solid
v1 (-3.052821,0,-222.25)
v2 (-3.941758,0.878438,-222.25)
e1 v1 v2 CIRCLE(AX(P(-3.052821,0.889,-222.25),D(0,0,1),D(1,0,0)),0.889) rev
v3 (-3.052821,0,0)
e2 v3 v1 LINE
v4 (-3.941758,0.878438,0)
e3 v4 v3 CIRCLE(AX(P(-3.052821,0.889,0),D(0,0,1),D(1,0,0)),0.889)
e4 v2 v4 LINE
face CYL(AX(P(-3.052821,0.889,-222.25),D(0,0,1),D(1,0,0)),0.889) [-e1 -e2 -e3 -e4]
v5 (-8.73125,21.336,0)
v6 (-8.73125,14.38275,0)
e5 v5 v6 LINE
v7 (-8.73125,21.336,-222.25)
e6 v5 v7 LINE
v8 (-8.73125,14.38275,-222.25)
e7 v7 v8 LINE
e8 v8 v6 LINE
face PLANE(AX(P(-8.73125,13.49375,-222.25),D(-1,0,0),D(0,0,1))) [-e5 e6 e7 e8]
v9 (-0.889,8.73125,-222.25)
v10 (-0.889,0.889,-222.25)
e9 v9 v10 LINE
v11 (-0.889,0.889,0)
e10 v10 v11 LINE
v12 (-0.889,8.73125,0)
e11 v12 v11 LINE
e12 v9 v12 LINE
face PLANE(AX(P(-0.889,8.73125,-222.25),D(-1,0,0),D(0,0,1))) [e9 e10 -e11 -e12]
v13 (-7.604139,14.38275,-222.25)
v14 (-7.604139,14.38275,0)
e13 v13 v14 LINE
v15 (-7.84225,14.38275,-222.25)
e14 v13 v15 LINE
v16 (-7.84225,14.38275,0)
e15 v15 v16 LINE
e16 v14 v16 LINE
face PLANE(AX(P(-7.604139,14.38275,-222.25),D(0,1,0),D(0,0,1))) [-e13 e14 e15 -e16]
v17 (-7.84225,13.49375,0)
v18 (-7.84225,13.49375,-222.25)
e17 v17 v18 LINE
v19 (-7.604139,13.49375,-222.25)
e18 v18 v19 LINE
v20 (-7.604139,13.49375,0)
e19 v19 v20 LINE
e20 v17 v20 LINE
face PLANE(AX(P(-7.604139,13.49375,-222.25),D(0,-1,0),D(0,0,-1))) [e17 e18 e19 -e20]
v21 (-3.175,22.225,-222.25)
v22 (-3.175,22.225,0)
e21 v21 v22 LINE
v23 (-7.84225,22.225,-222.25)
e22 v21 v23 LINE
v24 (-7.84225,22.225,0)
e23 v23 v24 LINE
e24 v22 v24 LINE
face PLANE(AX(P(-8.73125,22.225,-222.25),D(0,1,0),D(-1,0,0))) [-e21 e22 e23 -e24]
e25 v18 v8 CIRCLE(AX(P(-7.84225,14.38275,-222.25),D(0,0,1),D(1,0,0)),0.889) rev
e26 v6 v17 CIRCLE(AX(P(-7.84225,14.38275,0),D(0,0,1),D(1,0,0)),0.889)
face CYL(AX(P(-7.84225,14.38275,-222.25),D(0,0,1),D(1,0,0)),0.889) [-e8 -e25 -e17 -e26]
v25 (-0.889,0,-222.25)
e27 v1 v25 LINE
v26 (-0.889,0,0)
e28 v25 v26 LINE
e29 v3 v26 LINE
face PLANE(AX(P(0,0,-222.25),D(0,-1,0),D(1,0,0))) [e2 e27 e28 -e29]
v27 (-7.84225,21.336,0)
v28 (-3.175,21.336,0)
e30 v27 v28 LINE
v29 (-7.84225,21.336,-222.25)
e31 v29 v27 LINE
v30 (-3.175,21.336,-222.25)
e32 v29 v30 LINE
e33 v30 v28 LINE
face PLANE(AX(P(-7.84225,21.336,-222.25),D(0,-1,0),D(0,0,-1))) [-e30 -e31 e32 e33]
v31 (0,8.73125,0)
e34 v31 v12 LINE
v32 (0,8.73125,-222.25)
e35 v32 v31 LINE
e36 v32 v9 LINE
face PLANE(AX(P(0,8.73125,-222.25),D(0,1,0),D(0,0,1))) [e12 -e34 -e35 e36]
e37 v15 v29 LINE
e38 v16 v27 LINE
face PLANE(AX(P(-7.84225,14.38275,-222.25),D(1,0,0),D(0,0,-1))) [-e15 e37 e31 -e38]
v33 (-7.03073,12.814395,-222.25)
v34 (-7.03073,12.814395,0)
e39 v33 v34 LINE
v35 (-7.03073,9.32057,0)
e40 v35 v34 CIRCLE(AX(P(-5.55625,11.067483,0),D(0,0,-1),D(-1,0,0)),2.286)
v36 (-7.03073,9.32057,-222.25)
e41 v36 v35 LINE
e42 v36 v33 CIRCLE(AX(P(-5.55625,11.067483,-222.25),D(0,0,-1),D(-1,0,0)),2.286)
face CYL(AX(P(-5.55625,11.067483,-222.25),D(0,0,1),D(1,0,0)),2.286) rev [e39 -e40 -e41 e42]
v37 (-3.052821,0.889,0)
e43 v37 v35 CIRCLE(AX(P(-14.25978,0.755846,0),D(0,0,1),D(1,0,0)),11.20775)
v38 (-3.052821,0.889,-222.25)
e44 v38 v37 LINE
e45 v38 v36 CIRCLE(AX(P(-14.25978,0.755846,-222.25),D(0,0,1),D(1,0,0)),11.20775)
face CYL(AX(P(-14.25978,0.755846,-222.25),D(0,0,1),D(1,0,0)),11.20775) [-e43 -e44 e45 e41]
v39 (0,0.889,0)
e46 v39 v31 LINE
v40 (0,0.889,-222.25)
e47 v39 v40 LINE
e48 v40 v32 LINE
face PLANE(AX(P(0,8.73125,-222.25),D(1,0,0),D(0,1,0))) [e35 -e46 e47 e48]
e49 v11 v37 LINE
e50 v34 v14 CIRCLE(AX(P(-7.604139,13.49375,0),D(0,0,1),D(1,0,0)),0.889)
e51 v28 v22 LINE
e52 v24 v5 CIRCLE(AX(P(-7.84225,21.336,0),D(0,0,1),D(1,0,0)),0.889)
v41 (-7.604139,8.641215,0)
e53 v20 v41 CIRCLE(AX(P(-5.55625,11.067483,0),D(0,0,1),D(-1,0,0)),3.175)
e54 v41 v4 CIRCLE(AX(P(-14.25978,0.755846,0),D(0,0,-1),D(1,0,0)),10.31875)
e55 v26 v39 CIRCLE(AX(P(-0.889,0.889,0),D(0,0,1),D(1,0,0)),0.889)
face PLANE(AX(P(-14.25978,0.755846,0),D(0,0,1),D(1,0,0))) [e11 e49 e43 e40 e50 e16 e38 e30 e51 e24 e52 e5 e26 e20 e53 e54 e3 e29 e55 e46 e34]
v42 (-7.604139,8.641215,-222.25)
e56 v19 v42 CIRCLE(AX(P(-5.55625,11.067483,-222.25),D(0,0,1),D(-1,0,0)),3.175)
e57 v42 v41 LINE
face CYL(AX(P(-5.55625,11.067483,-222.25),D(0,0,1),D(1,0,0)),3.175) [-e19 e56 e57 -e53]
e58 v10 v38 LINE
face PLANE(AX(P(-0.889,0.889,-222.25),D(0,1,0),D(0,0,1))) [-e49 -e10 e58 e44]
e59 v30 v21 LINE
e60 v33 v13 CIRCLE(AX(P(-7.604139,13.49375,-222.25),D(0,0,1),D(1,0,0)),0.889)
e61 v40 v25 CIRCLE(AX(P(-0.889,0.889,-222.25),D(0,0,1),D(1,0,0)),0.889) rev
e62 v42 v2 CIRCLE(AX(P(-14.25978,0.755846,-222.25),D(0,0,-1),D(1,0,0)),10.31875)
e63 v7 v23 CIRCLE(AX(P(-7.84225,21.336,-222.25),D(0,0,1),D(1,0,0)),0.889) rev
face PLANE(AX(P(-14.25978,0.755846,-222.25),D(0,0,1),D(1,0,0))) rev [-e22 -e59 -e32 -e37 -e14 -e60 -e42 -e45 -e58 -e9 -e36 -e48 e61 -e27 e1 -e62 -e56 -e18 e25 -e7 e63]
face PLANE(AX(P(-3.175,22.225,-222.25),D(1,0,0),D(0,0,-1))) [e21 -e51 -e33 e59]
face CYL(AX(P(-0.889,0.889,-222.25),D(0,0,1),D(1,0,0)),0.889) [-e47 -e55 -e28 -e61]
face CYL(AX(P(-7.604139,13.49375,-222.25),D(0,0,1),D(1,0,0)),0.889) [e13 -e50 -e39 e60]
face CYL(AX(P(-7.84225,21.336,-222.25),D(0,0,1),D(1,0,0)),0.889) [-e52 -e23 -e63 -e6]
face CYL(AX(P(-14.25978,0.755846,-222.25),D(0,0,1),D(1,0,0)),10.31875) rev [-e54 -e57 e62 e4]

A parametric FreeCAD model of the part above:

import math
import FreeCAD as App
import Part
import Sketcher
from FreeCAD import Vector
Q = App.Units.Quantity


def edges_at(feature, points):
    """Names of the edges that pass closest to the given points."""
    edges = feature.Shape.Edges
    near = lambda p: min(range(len(edges)), key=lambda i: edges[i].distToShape(Part.Vertex(*p))[0])
    return sorted({f"Edge{near(p) + 1}" for p in points})

doc = App.newDocument("Part")
params = doc.addObject("Spreadsheet::Sheet", "Params")
for row, (alias, value) in enumerate([
    ("sketch1_radius", "0.09 in"),
    ("sketch1_radius2", "0.035 in"),
    ("sketch1_radius3", "0.40625 in"),
    ("sketch1_width", "0.035 in"),
    ("sketch1_width2", "0.21875 in"),
    ("pad1_length", "8.75 in"),
    ("fillet_radius", "0.035 in"),
], start=1):
    params.set(f"A{row}", alias)
    params.set(f"B{row}", "=" + value)
    params.setAlias(f"B{row}", alias)

body = doc.addObject("PartDesign::Body", "Body")

sketch1 = body.newObject("Sketcher::SketchObject", "Sketch")
sketch1.AttachmentSupport = (doc.getObject("XY_Plane"), [""])
sketch1.MapMode = "FlatFace"
sketch1.addGeometry(Part.LineSegment(Vector(0, 0, 0), Vector(0, 8.73, 0)), False)
sketch1.addGeometry(Part.LineSegment(Vector(0, 8.73, 0), Vector(-0.89, 8.73, 0)), False)
sketch1.addGeometry(Part.LineSegment(Vector(-0.89, 8.73, 0), Vector(-0.89, 0.89, 0)), False)
sketch1.addGeometry(Part.LineSegment(Vector(-0.89, 0.89, 0), Vector(-3.05, 0.89, 0)), False)
sketch1.addGeometry(Part.ArcOfCircle(Part.Circle(Vector(-14.26, 0.76, 0), Vector(0, 0, 1), 11.21), math.radians(1), math.radians(50)), False)
sketch1.addGeometry(Part.ArcOfCircle(Part.Circle(Vector(-5.56, 11.07, 0), Vector(0, 0, 1), 2.29), math.radians(130), math.radians(230)), False)
sketch1.addGeometry(Part.ArcOfCircle(Part.Circle(Vector(-7.6, 13.49, 0), Vector(0, 0, 1), 0.89), math.radians(-50), math.radians(90)), False)
sketch1.addGeometry(Part.LineSegment(Vector(-7.6, 14.38, 0), Vector(-7.84, 14.38, 0)), False)
sketch1.addGeometry(Part.LineSegment(Vector(-7.84, 14.38, 0), Vector(-7.84, 21.34, 0)), False)
sketch1.addGeometry(Part.LineSegment(Vector(-7.84, 21.34, 0), Vector(-3.17, 21.34, 0)), False)
sketch1.addGeometry(Part.LineSegment(Vector(-3.17, 21.34, 0), Vector(-3.17, 22.23, 0)), False)
sketch1.addGeometry(Part.LineSegment(Vector(-3.17, 22.23, 0), Vector(-8.73, 22.23, 0)), False)
sketch1.addGeometry(Part.LineSegment(Vector(-8.73, 22.23, 0), Vector(-8.73, 13.49, 0)), False)
sketch1.addGeometry(Part.LineSegment(Vector(-8.73, 13.49, 0), Vector(-7.6, 13.49, 0)), False)
sketch1.addGeometry(Part.ArcOfCircle(Part.Circle(Vector(-5.56, 11.07, 0), Vector(0, 0, 1), 3.18), math.radians(130), math.radians(230)), False)
sketch1.addGeometry(Part.ArcOfCircle(Part.Circle(Vector(-14.26, 0.76, 0), Vector(0, 0, 1), 10.32), math.radians(-4), math.radians(50)), False)
sketch1.addGeometry(Part.LineSegment(Vector(-3.97, 0, 0), Vector(0, 0, 0)), False)
sketch1.addConstraint(Sketcher.Constraint("Coincident", 0, 2, 1, 1))
sketch1.addConstraint(Sketcher.Constraint("Coincident", 1, 2, 2, 1))
sketch1.addConstraint(Sketcher.Constraint("Coincident", 2, 2, 3, 1))
sketch1.addConstraint(Sketcher.Constraint("Coincident", 3, 2, 4, 1))
sketch1.addConstraint(Sketcher.Constraint("Tangent", 4, 2, 5, 2))
sketch1.addConstraint(Sketcher.Constraint("Tangent", 5, 1, 6, 1))
sketch1.addConstraint(Sketcher.Constraint("Tangent", 6, 2, 7, 1))
sketch1.addConstraint(Sketcher.Constraint("Coincident", 7, 2, 8, 1))
sketch1.addConstraint(Sketcher.Constraint("Coincident", 8, 2, 9, 1))
sketch1.addConstraint(Sketcher.Constraint("Coincident", 9, 2, 10, 1))
sketch1.addConstraint(Sketcher.Constraint("Coincident", 10, 2, 11, 1))
sketch1.addConstraint(Sketcher.Constraint("Coincident", 11, 2, 12, 1))
sketch1.addConstraint(Sketcher.Constraint("Coincident", 12, 2, 13, 1))
sketch1.addConstraint(Sketcher.Constraint("Coincident", 13, 2, 14, 1))
sketch1.addConstraint(Sketcher.Constraint("Tangent", 14, 2, 15, 2))
sketch1.addConstraint(Sketcher.Constraint("Coincident", 15, 1, 16, 1))
sketch1.addConstraint(Sketcher.Constraint("Coincident", 16, 2, 0, 1))
sketch1.addConstraint(Sketcher.Constraint("Vertical", 0))
sketch1.addConstraint(Sketcher.Constraint("Horizontal", 1))
sketch1.addConstraint(Sketcher.Constraint("Vertical", 2))
sketch1.addConstraint(Sketcher.Constraint("Horizontal", 3))
sketch1.addConstraint(Sketcher.Constraint("Horizontal", 7))
sketch1.addConstraint(Sketcher.Constraint("Vertical", 8))
sketch1.addConstraint(Sketcher.Constraint("Horizontal", 9))
sketch1.addConstraint(Sketcher.Constraint("Vertical", 10))
sketch1.addConstraint(Sketcher.Constraint("Horizontal", 11))
sketch1.addConstraint(Sketcher.Constraint("Vertical", 12))
sketch1.addConstraint(Sketcher.Constraint("Horizontal", 13))
sketch1.addConstraint(Sketcher.Constraint("Horizontal", 16))
sketch1.addConstraint(Sketcher.Constraint("Coincident", 16, 2, -1, 1))
sketch1.addConstraint(Sketcher.Constraint("Coincident", 14, 3, 5, 3))
sketch1.addConstraint(Sketcher.Constraint("Coincident", 15, 3, 4, 3))
sketch1.addConstraint(Sketcher.Constraint("Coincident", 13, 2, 6, 3))
sketch1.addConstraint(Sketcher.Constraint("Vertical", 4, 2, 5, 1))
sketch1.addConstraint(Sketcher.Constraint("Equal", 1, 10))
sketch1.addConstraint(Sketcher.Constraint("Equal", 0, 12))
sketch1.addConstraint(Sketcher.Constraint("Radius", 5, Q("0.09 in")))
sketch1.addConstraint(Sketcher.Constraint("Radius", 6, Q("0.035 in")))
sketch1.addConstraint(Sketcher.Constraint("Radius", 15, Q("0.40625 in")))
sketch1.addConstraint(Sketcher.Constraint("DistanceX", 1, 2, 1, 1, Q("0.035 in")))
sketch1.addConstraint(Sketcher.Constraint("DistanceX", 11, 2, 11, 1, Q("0.21875 in")))
sketch1.addConstraint(Sketcher.Constraint("DistanceX", 16, 1, 16, 2, Q("0.15625 in")))
sketch1.addConstraint(Sketcher.Constraint("DistanceY", 0, 1, 0, 2, Q("0.34375 in")))
sketch1.addConstraint(Sketcher.Constraint("DistanceY", -1, 1, 8, 2, Q("0.84 in")))
sketch1.addConstraint(Sketcher.Constraint("DistanceX", 7, 2, 5, 3, Q("0.09 in")))
sketch1.addConstraint(Sketcher.Constraint("DistanceX", 5, 3, -1, 1, Q("0.21875 in")))
sketch1.addConstraint(Sketcher.Constraint("DistanceY", -1, 1, 2, 2, Q("0.035 in")))
sketch1.addConstraint(Sketcher.Constraint("DistanceX", 9, 2, -1, 1, Q("0.125 in")))
sketch1.setExpression("Constraints[36]", "Params.sketch1_radius")
sketch1.setExpression("Constraints[37]", "Params.sketch1_radius2")
sketch1.setExpression("Constraints[38]", "Params.sketch1_radius3")
sketch1.setExpression("Constraints[39]", "Params.sketch1_width")
sketch1.setExpression("Constraints[40]", "Params.sketch1_width2")
pad1 = body.newObject("PartDesign::Pad", "Pad")
pad1.Profile = sketch1
pad1.setExpression("Length", "Params.pad1_length")
pad1.Reversed = True
doc.recompute()

fillet = body.newObject("PartDesign::Fillet", "Fillet")
fillet.Base = (pad1, edges_at(pad1, [
    (0, 0, -111.125),
    (-3.969, 0, -111.125),
    (-8.731, 13.494, -111.125),
    (-8.731, 22.225, -111.125),
]))
fillet.setExpression("Radius", "Params.fillet_radius")

doc.recompute()
